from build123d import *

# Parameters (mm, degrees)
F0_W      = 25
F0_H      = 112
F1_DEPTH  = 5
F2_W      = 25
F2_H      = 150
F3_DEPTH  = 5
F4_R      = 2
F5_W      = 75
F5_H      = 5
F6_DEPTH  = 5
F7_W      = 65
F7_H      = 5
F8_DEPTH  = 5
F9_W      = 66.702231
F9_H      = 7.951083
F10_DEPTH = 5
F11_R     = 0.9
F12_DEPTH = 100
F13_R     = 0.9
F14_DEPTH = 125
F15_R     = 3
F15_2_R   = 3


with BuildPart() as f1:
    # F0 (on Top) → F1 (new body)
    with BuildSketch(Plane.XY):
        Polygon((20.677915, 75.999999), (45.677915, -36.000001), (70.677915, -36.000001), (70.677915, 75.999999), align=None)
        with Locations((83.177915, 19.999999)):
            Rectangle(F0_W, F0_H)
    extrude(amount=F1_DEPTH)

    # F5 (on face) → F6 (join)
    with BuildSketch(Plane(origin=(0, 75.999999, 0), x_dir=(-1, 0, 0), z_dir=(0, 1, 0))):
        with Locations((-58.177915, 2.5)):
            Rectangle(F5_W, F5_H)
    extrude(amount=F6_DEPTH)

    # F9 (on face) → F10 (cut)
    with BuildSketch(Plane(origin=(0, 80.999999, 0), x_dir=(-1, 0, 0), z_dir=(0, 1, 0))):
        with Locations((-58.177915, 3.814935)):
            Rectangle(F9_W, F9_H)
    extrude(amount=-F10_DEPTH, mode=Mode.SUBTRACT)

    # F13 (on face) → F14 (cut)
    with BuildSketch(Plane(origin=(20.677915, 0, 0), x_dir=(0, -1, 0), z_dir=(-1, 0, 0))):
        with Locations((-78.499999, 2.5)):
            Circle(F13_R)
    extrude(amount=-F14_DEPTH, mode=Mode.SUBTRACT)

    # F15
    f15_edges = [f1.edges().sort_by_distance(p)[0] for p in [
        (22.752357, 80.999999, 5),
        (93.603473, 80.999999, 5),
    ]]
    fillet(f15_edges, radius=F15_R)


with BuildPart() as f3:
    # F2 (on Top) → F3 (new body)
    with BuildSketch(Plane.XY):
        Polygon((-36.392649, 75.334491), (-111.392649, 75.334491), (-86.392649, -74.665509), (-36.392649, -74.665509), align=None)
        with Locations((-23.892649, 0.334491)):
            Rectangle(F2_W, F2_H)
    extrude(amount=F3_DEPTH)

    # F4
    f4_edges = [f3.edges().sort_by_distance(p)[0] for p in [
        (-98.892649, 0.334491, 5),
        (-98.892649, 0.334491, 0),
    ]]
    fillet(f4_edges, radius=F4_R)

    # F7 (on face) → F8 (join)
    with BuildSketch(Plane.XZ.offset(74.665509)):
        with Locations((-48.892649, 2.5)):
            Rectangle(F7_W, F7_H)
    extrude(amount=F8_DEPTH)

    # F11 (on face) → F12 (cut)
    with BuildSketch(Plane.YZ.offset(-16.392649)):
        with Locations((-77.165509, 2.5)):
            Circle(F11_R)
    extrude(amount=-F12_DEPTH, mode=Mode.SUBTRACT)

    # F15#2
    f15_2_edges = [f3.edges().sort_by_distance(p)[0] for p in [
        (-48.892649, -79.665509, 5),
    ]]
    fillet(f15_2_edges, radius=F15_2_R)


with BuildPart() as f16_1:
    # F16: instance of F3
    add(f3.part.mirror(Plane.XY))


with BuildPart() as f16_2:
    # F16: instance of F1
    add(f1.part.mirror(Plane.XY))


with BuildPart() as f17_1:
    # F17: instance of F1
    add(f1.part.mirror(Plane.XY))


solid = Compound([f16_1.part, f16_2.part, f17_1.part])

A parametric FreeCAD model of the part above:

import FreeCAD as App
import Part
import Sketcher
from FreeCAD import Vector
Q = App.Units.Quantity


def edges_at(feature, points):
    """Names of the edges that pass closest to the given points."""
    edges = feature.Shape.Edges
    near = lambda p: min(range(len(edges)), key=lambda i: edges[i].distToShape(Part.Vertex(*p))[0])
    return sorted({f"Edge{near(p) + 1}" for p in points})


def add_polygon(sketch, points):
    """Adds a closed chain of lines whose ends are joined by coincident constraints."""
    first, n = sketch.GeometryCount, len(points)
    for a, b in zip(points, points[1:] + points[:1]):
        sketch.addGeometry(Part.LineSegment(App.Vector(*a, 0), App.Vector(*b, 0)), False)
    for i in range(n):
        sketch.addConstraint(Sketcher.Constraint("Coincident", first + i, 2, first + (i + 1) % n, 1))

doc = App.newDocument("Part")
body = doc.addObject("PartDesign::Body", "Body")

# Sketch on XY plane
sketch1 = body.newObject("Sketcher::SketchObject", "Sketch")
sketch1.AttachmentSupport = (doc.getObject("XY_Plane"), [""])
sketch1.MapMode = "FlatFace"
add_polygon(sketch1, [(21, 76), (46, -36), (96, -36), (96, 76)])  # lines 0-3
sketch1.addConstraint([
    Sketcher.Constraint("Horizontal", 1),
    Sketcher.Constraint("Vertical", 2),
    Sketcher.Constraint("Horizontal", 3),
    Sketcher.Constraint("DistanceX", 1, 1, 1, 2, Q("50 mm")),
    Sketcher.Constraint("DistanceX", 3, 2, 3, 1, Q("75 mm")),
    Sketcher.Constraint("DistanceY", 2, 1, 2, 2, Q("112 mm")),
    Sketcher.Constraint("DistanceY", 0, 2, -1, 1, Q("36.000001 mm")),
    Sketcher.Constraint("DistanceX", -1, 1, 0, 2, Q("45.677915 mm")),
])
pad1 = body.newObject("PartDesign::Pad", "Pad")
pad1.Profile = sketch1
pad1.Length = 5

# Sketch on XZ plane
sketch2 = body.newObject("Sketcher::SketchObject", "Sketch001")
sketch2.AttachmentSupport = (doc.getObject("XZ_Plane"), [""])
sketch2.MapMode = "FlatFace"
sketch2.AttachmentOffset = App.Placement(Vector(0, 0, -75.999999), App.Rotation())
add_polygon(sketch2, [(96, 5), (96, 0), (21, 0), (21, 5)])  # lines 0-3
sketch2.addConstraint([
    Sketcher.Constraint("Vertical", 0),
    Sketcher.Constraint("Horizontal", 1),
    Sketcher.Constraint("Vertical", 2),
    Sketcher.Constraint("Horizontal", 3),
    Sketcher.Constraint("PointOnObject", 0, 2, -1),
    Sketcher.Constraint("DistanceX", 1, 2, 1, 1, Q("75 mm")),
    Sketcher.Constraint("DistanceY", 0, 2, 0, 1, Q("5 mm")),
    Sketcher.Constraint("DistanceX", -1, 1, 0, 2, Q("95.677915 mm")),
])
pad2 = body.newObject("PartDesign::Pad", "Pad001")
pad2.Profile = sketch2
pad2.Length = 5
pad2.Reversed = True

# Sketch on XZ plane
sketch3 = body.newObject("Sketcher::SketchObject", "Sketch002")
sketch3.AttachmentSupport = (doc.getObject("XZ_Plane"), [""])
sketch3.MapMode = "FlatFace"
sketch3.AttachmentOffset = App.Placement(Vector(0, 0, -80.999999), App.Rotation())
add_polygon(sketch3, [(92, 8), (92, 0), (25, 0), (25, 8)])  # lines 0-3
sketch3.addConstraint([
    Sketcher.Constraint("Vertical", 0),
    Sketcher.Constraint("Horizontal", 1),
    Sketcher.Constraint("Vertical", 2),
    Sketcher.Constraint("Horizontal", 3),
    Sketcher.Constraint("DistanceX", 1, 2, 1, 1, Q("66.702231 mm")),
    Sketcher.Constraint("DistanceX", -1, 1, 1, 2, Q("24.826799 mm")),
    Sketcher.Constraint("DistanceY", 0, 2, 0, 1, Q("7.951083 mm")),
    Sketcher.Constraint("DistanceY", 0, 2, -1, 1, Q("0.160607 mm")),
])
pocket1 = body.newObject("PartDesign::Pocket", "Pocket")
pocket1.Profile = sketch3
pocket1.Length = 5
pocket1.Reversed = True

# Sketch on YZ plane
sketch4 = body.newObject("Sketcher::SketchObject", "Sketch003")
sketch4.AttachmentSupport = (doc.getObject("YZ_Plane"), [""])
sketch4.MapMode = "FlatFace"
sketch4.AttachmentOffset = App.Placement(Vector(0, 0, 20.677915), App.Rotation())
sketch4.addGeometry(Part.Circle(Vector(78.5, 2.5, 0), Vector(0, 0, 1), 0.9), False)
sketch4.addConstraint([
    Sketcher.Constraint("Diameter", 0, Q("1.8 mm")),
    Sketcher.Constraint("DistanceX", -1, 1, 0, 3, Q("78.499999 mm")),
    Sketcher.Constraint("DistanceY", -1, 1, 0, 3, Q("2.5 mm")),
])
pocket2 = body.newObject("PartDesign::Pocket", "Pocket001")
pocket2.Profile = sketch4
pocket2.Length = 125
pocket2.Reversed = True
doc.recompute()

fillet = body.newObject("PartDesign::Fillet", "Fillet")
fillet.Base = (pocket2, edges_at(pocket2, [(22.752, 81, 5), (93.603, 81, 5)]))
fillet.Radius = 3
body2 = doc.addObject("PartDesign::Body", "Body001")

# Sketch on XY plane
sketch5 = body2.newObject("Sketcher::SketchObject", "Sketch004")
sketch5.AttachmentSupport = (doc.getObject("XY_Plane001"), [""])
sketch5.MapMode = "FlatFace"
add_polygon(sketch5, [(-111, 75), (-86, -75), (-11, -75), (-11, 75)])  # lines 0-3
sketch5.addConstraint([
    Sketcher.Constraint("Horizontal", 1),
    Sketcher.Constraint("Vertical", 2),
    Sketcher.Constraint("Horizontal", 3),
    Sketcher.Constraint("DistanceX", 1, 1, 1, 2, Q("75 mm")),
    Sketcher.Constraint("DistanceX", 3, 2, 3, 1, Q("100 mm")),
    Sketcher.Constraint("DistanceY", 2, 1, 2, 2, Q("150 mm")),
    Sketcher.Constraint("DistanceX", 0, 2, -1, 1, Q("86.392649 mm")),
    Sketcher.Constraint("DistanceY", 0, 2, -1, 1, Q("74.665509 mm")),
])
pad3 = body2.newObject("PartDesign::Pad", "Pad002")
pad3.Profile = sketch5
pad3.Length = 5
doc.recompute()

fillet2 = body2.newObject("PartDesign::Fillet", "Fillet001")
fillet2.Base = (pad3, edges_at(pad3, [(-98.893, 0.334, 5), (-98.893, 0.334, 0)]))
fillet2.Radius = 2

# Sketch on XZ plane
sketch6 = body2.newObject("Sketcher::SketchObject", "Sketch005")
sketch6.AttachmentSupport = (doc.getObject("XZ_Plane001"), [""])
sketch6.MapMode = "FlatFace"
sketch6.AttachmentOffset = App.Placement(Vector(0, 0, 74.665509), App.Rotation())
add_polygon(sketch6, [(-81, 5), (-81, 0), (-16, 0), (-16, 5)])  # lines 0-3
sketch6.addConstraint([
    Sketcher.Constraint("Vertical", 0),
    Sketcher.Constraint("Horizontal", 1),
    Sketcher.Constraint("Vertical", 2),
    Sketcher.Constraint("Horizontal", 3),
    Sketcher.Constraint("PointOnObject", 0, 2, -1),
    Sketcher.Constraint("DistanceX", 1, 1, 1, 2, Q("65 mm")),
    Sketcher.Constraint("DistanceY", 0, 2, 0, 1, Q("5 mm")),
    Sketcher.Constraint("DistanceX", 0, 2, -1, 1, Q("81.392649 mm")),
])
pad4 = body2.newObject("PartDesign::Pad", "Pad003")
pad4.Profile = sketch6
pad4.Length = 5

# Sketch on YZ plane
sketch7 = body2.newObject("Sketcher::SketchObject", "Sketch006")
sketch7.AttachmentSupport = (doc.getObject("YZ_Plane001"), [""])
sketch7.MapMode = "FlatFace"
sketch7.AttachmentOffset = App.Placement(Vector(0, 0, -16.392649), App.Rotation())
sketch7.addGeometry(Part.Circle(Vector(-77.2, 2.5, 0), Vector(0, 0, 1), 0.9), False)
sketch7.addConstraint([
    Sketcher.Constraint("Diameter", 0, Q("1.8 mm")),
    Sketcher.Constraint("DistanceY", -1, 1, 0, 3, Q("2.5 mm")),
    Sketcher.Constraint("DistanceX", 0, 3, -1, 1, Q("77.165509 mm")),
])
pocket3 = body2.newObject("PartDesign::Pocket", "Pocket002")
pocket3.Profile = sketch7
pocket3.Length = 100
doc.recompute()

fillet3 = body2.newObject("PartDesign::Fillet", "Fillet002")
fillet3.Base = (pocket3, edges_at(pocket3, [(-48.893, -79.666, 5)]))
fillet3.Radius = 3
body3 = doc.addObject("PartDesign::Body", "Body002")
doc.recompute()

mirroring = doc.addObject("Part::Mirroring", "Mirroring")
mirroring.Source = body2
mirroring.Base = Vector(0, 0, 0)
mirroring.Normal = Vector(0, 0, 1)
body3.BaseFeature = mirroring
doc.recompute()
body4 = doc.addObject("PartDesign::Body", "Body003")
doc.recompute()

mirroring2 = doc.addObject("Part::Mirroring", "Mirroring001")
mirroring2.Source = body
mirroring2.Base = Vector(0, 0, 0)
mirroring2.Normal = Vector(0, 0, 1)
body4.BaseFeature = mirroring2
doc.recompute()
body5 = doc.addObject("PartDesign::Body", "Body004")
doc.recompute()

mirroring3 = doc.addObject("Part::Mirroring", "Mirroring002")
mirroring3.Source = body
mirroring3.Base = Vector(0, 0, 0)
mirroring3.Normal = Vector(0, 0, 1)
body5.BaseFeature = mirroring3
doc.recompute()
body.Visibility = False
body2.Visibility = False
mirroring.Visibility = False
mirroring2.Visibility = False
mirroring3.Visibility = False

doc.recompute()
